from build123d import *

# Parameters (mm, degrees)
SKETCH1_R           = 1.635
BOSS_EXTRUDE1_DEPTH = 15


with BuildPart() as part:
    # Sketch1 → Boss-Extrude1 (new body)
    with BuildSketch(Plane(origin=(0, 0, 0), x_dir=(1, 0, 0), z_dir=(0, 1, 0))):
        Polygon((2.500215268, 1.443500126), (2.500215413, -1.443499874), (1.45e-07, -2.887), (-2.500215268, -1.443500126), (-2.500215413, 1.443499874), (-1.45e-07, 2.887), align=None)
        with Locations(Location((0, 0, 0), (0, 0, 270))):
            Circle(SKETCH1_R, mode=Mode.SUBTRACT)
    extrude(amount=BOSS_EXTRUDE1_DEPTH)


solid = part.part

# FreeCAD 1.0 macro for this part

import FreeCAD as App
import Part
import Sketcher
from FreeCAD import Vector
Q = App.Units.Quantity


def add_polygon(sketch, points):
    """Adds a closed chain of lines whose ends are joined by coincident constraints."""
    first, n = sketch.GeometryCount, len(points)
    for a, b in zip(points, points[1:] + points[:1]):
        sketch.addGeometry(Part.LineSegment(App.Vector(*a, 0), App.Vector(*b, 0)), False)
    for i in range(n):
        sketch.addConstraint(Sketcher.Constraint("Coincident", first + i, 2, first + (i + 1) % n, 1))

doc = App.newDocument("Part")
body = doc.addObject("PartDesign::Body", "Body")

sketch1 = doc.addObject("Sketcher::SketchObject", "Sketch")
body.addObject(sketch1)
sketch1.AttachmentSupport = (doc.XZ_Plane, [""])
sketch1.MapMode = "FlatFace"
add_polygon(sketch1, [(2.5, 1.4), (2.5, -1.4), (0, -2.9), (-2.5, -1.4), (-2.5, 1.4), (0, 2.9)])
sketch1.addGeometry(Part.Circle(Vector(0, 0, 0), Vector(0, 0, 1), 1.6), False)
sketch1.addConstraint(Sketcher.Constraint("Vertical", 0))
sketch1.addConstraint(Sketcher.Constraint("Vertical", 3))
sketch1.addConstraint(Sketcher.Constraint("Coincident", 6, 3, -1, 1))
sketch1.addConstraint(Sketcher.Constraint("Symmetric", 0, 2, 3, 2, -1, 1))
sketch1.addConstraint(Sketcher.Constraint("Symmetric", 1, 2, 4, 2, -1, 1))
sketch1.addConstraint(Sketcher.Constraint("PointOnObject", 1, 2, -2))
sketch1.addConstraint(Sketcher.Constraint("Parallel", 2, 5))
sketch1.addConstraint(Sketcher.Constraint("Horizontal", 0, 2, 2, 2))
sketch1.addConstraint(Sketcher.Constraint("Diameter", 6, 3.27))
sketch1.addConstraint(Sketcher.Constraint("Angle", 1, Q("-150.000003 deg")))
sketch1.addConstraint(Sketcher.Constraint("DistanceY", 0, 2, 0, 1, 2.887))
sketch1.addConstraint(Sketcher.Constraint("Distance", 1, 2.887))
pad1 = doc.addObject("PartDesign::Pad", "Pad")
body.addObject(pad1)
pad1.Profile = sketch1
pad1.Length = 15
pad1.Reversed = True

doc.recompute()
